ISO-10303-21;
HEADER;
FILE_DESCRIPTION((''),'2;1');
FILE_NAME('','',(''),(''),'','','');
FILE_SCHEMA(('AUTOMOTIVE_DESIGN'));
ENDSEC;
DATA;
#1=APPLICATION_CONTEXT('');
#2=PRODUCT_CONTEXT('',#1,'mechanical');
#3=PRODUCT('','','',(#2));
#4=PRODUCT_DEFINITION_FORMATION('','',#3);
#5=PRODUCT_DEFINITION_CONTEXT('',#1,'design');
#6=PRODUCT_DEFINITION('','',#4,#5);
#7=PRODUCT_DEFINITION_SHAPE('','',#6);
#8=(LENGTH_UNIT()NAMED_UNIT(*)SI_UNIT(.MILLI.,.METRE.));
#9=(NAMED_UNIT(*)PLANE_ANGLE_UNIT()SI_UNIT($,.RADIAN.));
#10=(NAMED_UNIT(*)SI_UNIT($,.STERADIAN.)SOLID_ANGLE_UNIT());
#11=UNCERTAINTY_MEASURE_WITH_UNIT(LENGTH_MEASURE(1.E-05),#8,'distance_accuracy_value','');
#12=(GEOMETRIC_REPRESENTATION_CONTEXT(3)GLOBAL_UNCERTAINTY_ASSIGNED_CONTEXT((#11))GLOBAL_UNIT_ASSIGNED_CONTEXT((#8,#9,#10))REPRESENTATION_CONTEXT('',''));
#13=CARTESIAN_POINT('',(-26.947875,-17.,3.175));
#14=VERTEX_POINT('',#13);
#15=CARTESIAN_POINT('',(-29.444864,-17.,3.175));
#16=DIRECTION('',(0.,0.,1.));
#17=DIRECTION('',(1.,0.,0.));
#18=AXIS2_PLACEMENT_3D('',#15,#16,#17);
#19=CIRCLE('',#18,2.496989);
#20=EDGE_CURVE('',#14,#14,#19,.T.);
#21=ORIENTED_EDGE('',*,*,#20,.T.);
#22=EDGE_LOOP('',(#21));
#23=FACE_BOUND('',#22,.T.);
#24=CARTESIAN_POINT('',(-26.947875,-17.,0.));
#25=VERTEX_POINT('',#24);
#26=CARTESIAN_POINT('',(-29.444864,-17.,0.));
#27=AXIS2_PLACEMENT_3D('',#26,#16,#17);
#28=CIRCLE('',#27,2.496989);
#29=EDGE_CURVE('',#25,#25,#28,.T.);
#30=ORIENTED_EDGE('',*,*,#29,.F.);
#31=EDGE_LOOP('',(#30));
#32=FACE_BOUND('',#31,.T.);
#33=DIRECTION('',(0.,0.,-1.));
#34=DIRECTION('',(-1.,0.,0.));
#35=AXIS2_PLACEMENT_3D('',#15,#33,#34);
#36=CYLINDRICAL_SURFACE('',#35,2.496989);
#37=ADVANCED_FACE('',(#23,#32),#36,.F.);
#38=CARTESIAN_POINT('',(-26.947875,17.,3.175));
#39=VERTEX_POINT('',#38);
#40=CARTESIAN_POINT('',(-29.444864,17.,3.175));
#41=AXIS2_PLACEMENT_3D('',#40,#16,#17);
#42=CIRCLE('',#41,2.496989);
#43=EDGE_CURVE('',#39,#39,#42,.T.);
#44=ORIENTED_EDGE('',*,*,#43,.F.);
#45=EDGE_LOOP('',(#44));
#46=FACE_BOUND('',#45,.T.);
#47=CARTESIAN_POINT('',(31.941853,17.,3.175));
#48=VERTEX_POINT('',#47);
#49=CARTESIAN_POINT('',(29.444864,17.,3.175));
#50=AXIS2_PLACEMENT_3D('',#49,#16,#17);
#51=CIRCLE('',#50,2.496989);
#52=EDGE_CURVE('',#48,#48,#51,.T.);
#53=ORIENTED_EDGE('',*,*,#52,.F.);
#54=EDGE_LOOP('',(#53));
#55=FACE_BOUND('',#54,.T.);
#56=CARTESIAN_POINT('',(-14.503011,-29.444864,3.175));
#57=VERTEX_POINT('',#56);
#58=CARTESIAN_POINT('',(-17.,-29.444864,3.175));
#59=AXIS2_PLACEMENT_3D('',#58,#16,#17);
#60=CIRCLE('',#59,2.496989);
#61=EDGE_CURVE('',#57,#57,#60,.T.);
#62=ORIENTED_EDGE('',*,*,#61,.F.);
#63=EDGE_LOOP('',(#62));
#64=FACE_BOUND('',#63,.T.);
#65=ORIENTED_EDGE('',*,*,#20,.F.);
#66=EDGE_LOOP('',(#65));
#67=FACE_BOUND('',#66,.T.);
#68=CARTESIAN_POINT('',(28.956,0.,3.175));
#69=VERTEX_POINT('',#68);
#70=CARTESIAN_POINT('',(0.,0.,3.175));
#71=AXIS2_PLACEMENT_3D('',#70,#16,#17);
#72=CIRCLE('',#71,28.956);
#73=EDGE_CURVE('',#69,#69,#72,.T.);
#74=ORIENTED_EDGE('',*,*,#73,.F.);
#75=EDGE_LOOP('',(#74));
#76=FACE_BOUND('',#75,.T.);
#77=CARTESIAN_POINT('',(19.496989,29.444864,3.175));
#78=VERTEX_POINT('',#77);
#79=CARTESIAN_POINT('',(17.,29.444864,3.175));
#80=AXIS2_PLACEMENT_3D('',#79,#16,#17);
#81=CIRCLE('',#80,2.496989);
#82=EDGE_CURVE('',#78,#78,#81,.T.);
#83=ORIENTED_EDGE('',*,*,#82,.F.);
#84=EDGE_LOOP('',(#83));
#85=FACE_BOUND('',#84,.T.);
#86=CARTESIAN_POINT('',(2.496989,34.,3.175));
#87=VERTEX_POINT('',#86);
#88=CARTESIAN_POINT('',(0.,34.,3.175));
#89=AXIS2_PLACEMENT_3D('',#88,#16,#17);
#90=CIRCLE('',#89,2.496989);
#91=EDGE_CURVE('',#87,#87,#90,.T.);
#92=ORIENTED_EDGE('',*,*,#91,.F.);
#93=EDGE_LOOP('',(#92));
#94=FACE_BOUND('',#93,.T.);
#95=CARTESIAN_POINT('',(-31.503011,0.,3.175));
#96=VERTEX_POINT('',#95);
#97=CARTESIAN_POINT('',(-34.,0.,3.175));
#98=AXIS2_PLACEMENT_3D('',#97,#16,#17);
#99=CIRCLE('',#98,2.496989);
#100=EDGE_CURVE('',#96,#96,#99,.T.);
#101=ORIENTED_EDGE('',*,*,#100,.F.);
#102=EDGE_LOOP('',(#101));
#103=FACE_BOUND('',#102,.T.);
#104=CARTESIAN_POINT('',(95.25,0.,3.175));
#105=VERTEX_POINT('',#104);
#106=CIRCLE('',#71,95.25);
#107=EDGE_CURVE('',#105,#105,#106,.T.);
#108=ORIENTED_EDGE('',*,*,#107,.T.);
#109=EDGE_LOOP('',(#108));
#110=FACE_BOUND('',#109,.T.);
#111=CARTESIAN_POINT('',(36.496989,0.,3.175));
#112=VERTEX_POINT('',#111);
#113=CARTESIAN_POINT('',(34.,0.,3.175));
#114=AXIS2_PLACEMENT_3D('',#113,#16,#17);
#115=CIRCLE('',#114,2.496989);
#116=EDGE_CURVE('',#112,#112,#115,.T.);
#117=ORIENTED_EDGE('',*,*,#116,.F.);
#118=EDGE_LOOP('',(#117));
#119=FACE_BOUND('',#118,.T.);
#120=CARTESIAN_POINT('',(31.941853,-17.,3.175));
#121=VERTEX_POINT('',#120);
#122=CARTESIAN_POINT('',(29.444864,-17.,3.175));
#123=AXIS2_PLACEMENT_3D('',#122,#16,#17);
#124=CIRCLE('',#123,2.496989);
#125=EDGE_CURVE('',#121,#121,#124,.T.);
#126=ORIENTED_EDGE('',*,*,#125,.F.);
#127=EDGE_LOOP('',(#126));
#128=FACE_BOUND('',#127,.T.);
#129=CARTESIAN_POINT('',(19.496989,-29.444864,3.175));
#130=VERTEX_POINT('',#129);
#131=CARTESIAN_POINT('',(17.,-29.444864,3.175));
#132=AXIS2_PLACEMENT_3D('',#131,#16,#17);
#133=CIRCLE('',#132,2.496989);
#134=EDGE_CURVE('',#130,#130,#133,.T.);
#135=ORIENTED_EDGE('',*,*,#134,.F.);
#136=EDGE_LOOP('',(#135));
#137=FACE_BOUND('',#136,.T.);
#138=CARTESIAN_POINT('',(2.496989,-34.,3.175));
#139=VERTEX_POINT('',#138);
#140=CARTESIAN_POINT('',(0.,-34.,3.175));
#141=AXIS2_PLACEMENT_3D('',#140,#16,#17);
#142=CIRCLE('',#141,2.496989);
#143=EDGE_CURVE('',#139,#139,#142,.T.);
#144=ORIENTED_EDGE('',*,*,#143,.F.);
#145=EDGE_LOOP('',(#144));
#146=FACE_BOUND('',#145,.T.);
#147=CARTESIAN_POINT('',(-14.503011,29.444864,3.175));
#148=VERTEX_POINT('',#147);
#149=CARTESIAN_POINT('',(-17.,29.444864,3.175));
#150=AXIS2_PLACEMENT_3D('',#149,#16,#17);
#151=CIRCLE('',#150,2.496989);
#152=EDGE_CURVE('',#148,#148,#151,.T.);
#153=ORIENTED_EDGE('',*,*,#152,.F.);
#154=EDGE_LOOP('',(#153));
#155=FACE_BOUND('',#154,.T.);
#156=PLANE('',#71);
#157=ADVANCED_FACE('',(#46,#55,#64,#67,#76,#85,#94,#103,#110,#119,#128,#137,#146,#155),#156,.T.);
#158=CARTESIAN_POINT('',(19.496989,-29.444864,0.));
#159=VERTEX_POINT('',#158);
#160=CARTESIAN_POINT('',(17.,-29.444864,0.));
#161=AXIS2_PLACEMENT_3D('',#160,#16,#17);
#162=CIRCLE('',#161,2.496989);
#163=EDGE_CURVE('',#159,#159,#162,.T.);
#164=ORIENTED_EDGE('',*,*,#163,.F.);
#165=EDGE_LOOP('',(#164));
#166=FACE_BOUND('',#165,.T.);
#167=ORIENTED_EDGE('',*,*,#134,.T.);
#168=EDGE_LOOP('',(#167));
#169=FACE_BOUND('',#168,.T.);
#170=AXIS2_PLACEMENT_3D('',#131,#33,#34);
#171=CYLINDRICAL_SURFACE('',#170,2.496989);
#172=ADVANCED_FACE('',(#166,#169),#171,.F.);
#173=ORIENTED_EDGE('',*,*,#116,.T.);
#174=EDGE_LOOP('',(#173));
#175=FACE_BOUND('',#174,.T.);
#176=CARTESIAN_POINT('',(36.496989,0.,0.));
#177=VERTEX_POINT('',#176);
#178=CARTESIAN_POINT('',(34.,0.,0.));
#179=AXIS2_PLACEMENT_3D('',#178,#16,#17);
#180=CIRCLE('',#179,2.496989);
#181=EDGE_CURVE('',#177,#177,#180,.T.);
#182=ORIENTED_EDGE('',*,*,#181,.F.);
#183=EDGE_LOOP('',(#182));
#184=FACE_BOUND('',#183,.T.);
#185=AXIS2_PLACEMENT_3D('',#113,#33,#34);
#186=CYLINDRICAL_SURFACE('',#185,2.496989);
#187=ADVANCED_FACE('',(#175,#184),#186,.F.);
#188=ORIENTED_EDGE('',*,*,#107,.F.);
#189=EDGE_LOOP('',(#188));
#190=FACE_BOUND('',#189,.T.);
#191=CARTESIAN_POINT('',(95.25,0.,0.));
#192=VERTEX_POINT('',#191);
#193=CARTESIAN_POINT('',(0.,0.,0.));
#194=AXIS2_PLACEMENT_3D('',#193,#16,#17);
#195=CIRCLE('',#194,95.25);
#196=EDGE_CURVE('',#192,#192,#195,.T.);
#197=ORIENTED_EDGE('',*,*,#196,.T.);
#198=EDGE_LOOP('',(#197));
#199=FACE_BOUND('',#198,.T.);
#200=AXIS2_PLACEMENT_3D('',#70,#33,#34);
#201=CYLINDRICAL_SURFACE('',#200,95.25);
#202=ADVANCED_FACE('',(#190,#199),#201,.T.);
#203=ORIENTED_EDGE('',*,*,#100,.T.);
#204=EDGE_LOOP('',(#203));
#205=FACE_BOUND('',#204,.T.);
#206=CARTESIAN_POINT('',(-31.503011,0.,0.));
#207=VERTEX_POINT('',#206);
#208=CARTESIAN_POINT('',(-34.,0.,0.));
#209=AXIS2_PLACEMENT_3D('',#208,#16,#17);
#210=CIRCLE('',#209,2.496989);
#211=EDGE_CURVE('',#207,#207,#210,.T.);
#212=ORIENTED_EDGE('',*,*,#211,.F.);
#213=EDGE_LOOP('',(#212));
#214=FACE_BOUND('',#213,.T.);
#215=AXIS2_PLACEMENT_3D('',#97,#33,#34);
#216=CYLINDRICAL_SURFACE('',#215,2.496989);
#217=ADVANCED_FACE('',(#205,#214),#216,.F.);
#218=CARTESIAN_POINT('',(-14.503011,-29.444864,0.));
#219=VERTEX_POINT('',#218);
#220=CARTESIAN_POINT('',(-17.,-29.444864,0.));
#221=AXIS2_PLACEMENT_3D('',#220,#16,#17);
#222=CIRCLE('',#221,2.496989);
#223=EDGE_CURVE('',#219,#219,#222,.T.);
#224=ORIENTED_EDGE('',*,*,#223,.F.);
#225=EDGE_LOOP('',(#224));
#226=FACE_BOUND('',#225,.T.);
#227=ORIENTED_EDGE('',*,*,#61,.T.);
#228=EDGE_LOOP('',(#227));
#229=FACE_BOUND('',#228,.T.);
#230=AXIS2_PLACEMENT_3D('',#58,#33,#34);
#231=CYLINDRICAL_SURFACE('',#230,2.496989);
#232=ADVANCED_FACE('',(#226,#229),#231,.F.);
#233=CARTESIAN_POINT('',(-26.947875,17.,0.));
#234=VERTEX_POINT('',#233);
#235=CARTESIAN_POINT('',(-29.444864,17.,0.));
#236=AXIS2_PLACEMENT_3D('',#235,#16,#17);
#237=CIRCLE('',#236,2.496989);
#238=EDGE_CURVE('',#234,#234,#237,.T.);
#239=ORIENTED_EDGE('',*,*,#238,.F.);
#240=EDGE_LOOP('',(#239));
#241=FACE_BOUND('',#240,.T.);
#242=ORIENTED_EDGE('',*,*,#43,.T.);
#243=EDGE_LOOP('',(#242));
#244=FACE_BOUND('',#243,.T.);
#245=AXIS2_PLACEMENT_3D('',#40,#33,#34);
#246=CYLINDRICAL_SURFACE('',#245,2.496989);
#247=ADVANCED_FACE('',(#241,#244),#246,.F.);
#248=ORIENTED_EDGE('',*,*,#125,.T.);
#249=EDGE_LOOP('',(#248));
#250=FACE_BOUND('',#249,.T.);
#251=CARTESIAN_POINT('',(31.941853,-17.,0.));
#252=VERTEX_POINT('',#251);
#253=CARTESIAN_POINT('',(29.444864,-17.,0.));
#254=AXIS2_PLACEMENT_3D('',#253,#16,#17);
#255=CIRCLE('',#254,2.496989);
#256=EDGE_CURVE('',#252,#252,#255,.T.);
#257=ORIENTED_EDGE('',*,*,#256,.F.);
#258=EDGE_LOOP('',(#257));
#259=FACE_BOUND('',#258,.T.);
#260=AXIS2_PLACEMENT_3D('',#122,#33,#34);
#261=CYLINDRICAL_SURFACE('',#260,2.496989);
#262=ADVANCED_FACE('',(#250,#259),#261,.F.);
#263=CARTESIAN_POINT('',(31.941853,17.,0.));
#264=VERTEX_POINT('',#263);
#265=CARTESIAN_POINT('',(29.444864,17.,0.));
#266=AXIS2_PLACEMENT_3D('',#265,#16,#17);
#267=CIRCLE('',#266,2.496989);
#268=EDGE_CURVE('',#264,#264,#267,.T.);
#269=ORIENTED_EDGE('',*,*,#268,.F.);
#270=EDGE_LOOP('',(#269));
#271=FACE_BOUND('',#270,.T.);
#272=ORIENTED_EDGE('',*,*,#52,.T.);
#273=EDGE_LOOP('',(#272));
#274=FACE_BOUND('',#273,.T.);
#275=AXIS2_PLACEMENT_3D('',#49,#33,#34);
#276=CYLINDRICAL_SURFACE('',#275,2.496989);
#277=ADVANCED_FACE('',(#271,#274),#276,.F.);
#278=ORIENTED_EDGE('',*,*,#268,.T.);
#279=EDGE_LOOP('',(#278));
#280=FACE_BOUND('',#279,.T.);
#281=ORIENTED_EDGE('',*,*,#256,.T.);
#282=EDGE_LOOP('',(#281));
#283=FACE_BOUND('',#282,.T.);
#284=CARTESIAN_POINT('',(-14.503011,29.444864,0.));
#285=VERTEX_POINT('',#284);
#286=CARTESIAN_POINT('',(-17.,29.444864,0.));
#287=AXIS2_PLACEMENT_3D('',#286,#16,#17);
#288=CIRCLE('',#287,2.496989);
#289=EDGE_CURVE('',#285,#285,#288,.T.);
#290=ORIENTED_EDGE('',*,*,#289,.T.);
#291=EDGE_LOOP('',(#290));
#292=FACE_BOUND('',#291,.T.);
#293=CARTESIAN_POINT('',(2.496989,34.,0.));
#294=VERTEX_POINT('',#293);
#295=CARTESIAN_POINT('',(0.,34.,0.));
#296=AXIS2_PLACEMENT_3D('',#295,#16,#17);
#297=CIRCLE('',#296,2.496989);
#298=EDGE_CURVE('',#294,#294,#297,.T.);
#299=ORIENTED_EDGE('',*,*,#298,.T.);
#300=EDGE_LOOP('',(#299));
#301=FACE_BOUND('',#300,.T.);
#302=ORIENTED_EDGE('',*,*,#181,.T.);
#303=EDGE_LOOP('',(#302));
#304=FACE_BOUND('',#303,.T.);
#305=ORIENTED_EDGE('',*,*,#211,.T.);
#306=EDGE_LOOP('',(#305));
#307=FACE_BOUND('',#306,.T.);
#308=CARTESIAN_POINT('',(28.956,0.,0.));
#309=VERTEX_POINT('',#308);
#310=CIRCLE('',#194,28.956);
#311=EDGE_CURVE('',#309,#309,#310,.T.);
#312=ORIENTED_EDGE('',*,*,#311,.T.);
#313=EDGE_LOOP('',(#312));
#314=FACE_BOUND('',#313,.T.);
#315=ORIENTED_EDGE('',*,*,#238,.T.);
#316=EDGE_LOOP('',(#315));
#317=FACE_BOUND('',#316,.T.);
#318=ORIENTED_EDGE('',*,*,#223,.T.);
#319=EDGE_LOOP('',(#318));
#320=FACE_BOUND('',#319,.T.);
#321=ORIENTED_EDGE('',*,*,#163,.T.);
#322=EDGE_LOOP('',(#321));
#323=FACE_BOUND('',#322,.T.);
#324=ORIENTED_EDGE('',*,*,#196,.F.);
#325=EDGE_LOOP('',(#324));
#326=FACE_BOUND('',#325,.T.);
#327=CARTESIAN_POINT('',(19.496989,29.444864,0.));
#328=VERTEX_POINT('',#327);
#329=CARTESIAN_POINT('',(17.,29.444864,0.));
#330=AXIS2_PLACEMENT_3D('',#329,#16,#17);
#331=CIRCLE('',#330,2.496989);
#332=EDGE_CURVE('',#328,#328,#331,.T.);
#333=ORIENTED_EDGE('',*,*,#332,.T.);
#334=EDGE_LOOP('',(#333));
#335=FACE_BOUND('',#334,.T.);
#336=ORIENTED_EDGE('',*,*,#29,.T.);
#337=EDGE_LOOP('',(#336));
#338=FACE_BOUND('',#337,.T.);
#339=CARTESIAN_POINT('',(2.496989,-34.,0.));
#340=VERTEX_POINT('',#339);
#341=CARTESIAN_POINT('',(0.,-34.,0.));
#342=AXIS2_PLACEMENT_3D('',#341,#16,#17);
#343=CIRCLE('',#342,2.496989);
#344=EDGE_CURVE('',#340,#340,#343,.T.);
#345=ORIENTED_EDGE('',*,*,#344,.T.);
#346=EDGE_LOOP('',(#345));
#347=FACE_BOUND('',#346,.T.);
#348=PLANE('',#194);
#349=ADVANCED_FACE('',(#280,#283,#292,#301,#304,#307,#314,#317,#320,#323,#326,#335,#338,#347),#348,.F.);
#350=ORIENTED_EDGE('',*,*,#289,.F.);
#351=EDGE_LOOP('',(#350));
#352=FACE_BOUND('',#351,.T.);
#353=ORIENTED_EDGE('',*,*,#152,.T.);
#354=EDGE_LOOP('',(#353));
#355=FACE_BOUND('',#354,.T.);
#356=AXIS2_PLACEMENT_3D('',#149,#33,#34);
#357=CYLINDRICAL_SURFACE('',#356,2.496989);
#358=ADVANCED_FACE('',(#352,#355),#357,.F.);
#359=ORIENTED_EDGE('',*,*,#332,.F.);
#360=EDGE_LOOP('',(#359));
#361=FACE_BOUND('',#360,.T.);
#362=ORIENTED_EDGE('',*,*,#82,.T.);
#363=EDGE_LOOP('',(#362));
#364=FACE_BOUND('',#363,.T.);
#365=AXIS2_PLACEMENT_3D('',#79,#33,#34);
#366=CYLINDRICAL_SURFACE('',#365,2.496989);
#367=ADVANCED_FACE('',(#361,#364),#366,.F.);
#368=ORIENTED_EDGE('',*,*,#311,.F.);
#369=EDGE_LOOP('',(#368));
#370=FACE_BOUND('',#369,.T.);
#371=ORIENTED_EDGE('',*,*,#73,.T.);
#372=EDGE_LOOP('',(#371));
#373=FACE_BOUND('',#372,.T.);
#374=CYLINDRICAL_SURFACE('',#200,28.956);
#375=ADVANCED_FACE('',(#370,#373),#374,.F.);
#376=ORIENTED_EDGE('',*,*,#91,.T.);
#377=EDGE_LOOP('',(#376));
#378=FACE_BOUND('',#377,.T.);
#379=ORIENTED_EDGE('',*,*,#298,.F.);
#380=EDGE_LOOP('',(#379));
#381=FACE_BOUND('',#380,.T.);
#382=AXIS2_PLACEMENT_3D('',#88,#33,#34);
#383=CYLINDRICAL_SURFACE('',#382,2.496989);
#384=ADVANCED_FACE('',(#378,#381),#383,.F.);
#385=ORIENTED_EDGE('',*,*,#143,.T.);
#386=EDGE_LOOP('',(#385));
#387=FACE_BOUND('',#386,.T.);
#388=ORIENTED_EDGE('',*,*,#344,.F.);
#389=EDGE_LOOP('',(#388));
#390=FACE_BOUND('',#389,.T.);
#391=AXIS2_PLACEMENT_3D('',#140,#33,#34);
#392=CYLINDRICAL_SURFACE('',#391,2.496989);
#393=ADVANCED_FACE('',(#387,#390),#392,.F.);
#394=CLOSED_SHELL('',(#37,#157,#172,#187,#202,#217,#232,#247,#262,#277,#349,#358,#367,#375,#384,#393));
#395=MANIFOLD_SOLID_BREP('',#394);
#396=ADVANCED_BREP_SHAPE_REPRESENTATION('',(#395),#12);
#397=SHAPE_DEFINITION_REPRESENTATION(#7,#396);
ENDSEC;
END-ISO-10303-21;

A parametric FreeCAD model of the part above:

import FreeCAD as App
import Part
import Sketcher
from FreeCAD import Vector
Q = App.Units.Quantity

doc = App.newDocument("Part")
body = doc.addObject("PartDesign::Body", "Body")

sketch1 = body.newObject("Sketcher::SketchObject", "Sketch")
sketch1.AttachmentSupport = (doc.getObject("XY_Plane"), [""])
sketch1.MapMode = "FlatFace"
sketch1.addGeometry([
    Part.Circle(Vector(0, 0, 0), Vector(0, 0, 1), 95.2),
    Part.Circle(Vector(-17, -29.4, 0), Vector(0, 0, 1), 2.5),
    Part.Circle(Vector(-29.4, -17, 0), Vector(0, 0, 1), 2.5),
    Part.Circle(Vector(0, -34, 0), Vector(0, 0, 1), 2.5),
    Part.Circle(Vector(17, -29.4, 0), Vector(0, 0, 1), 2.5),
    Part.Circle(Vector(29.4, -17, 0), Vector(0, 0, 1), 2.5),
    Part.Circle(Vector(-34, 0, 0), Vector(0, 0, 1), 2.5),
    Part.Circle(Vector(-29.4, 17, 0), Vector(0, 0, 1), 2.5),
    Part.Circle(Vector(-17, 29.4, 0), Vector(0, 0, 1), 2.5),
    Part.Circle(Vector(0, 0, 0), Vector(0, 0, 1), 29),
    Part.Circle(Vector(34, 0, 0), Vector(0, 0, 1), 2.5),
    Part.Circle(Vector(29.4, 17, 0), Vector(0, 0, 1), 2.5),
    Part.Circle(Vector(0, 34, 0), Vector(0, 0, 1), 2.5),
    Part.Circle(Vector(17, 29.4, 0), Vector(0, 0, 1), 2.5),
], False)
sketch1.addConstraint([
    Sketcher.Constraint("Coincident", 0, 3, -1, 1),
    Sketcher.Constraint("Coincident", 9, 3, -1, 1),
    Sketcher.Constraint("Equal", 1, 2),
    Sketcher.Constraint("Equal", 2, 3),
    Sketcher.Constraint("Equal", 3, 4),
    Sketcher.Constraint("Equal", 4, 5),
    Sketcher.Constraint("Equal", 5, 6),
    Sketcher.Constraint("Equal", 6, 7),
    Sketcher.Constraint("Equal", 7, 8),
    Sketcher.Constraint("Equal", 8, 10),
    Sketcher.Constraint("Equal", 10, 11),
    Sketcher.Constraint("Equal", 11, 12),
    Sketcher.Constraint("Equal", 12, 13),
    Sketcher.Constraint("Symmetric", 5, 3, 7, 3, -1, 1),
    Sketcher.Constraint("Symmetric", 4, 3, 8, 3, -1, 1),
    Sketcher.Constraint("Symmetric", 6, 3, 10, 3, -1, 1),
    Sketcher.Constraint("Symmetric", 2, 3, 11, 3, -1, 1),
    Sketcher.Constraint("Symmetric", 3, 3, 12, 3, -1, 1),
    Sketcher.Constraint("Symmetric", 1, 3, 13, 3, -1, 1),
    Sketcher.Constraint("Symmetric", 1, 3, 4, 3, -2),
    Sketcher.Constraint("Symmetric", 2, 3, 5, 3, -2),
    Sketcher.Constraint("PointOnObject", 3, 3, -2),
    Sketcher.Constraint("PointOnObject", 6, 3, -1),
    Sketcher.Constraint("Diameter", 0, Q("7.5 in")),
    Sketcher.Constraint("Diameter", 9, Q("2.28 in")),
    Sketcher.Constraint("Diameter", 1, 4.993978),
    Sketcher.Constraint("DistanceX", 1, 3, -1, 1, 17.0),
    Sketcher.Constraint("DistanceY", 2, 3, -1, 1, 17.0),
    Sketcher.Constraint("DistanceY", 3, 3, -1, 1, 34.0),
    Sketcher.Constraint("DistanceX", 6, 3, -1, 1, 34.0),
    Sketcher.Constraint("DistanceY", 1, 3, -1, 1, 29.444864),
    Sketcher.Constraint("DistanceX", 2, 3, -1, 1, 29.444864),
])
pad1 = body.newObject("PartDesign::Pad", "Pad")
pad1.Profile = sketch1
pad1.Length = Q("0.125 in")

doc.recompute()
